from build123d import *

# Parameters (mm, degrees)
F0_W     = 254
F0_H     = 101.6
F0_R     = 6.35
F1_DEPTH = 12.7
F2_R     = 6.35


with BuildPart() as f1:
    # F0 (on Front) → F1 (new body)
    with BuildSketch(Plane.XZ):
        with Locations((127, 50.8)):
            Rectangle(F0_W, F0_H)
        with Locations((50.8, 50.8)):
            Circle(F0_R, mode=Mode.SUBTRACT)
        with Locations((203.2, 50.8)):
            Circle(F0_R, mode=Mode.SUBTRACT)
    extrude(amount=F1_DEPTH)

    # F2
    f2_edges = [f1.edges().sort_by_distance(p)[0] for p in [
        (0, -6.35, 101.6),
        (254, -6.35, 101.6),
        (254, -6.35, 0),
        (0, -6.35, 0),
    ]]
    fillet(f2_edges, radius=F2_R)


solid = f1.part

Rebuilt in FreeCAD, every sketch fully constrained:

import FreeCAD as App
import Part
import Sketcher
from FreeCAD import Vector
Q = App.Units.Quantity


def edges_at(feature, points):
    """Names of the edges that pass closest to the given points."""
    edges = feature.Shape.Edges
    near = lambda p: min(range(len(edges)), key=lambda i: edges[i].distToShape(Part.Vertex(*p))[0])
    return sorted({f"Edge{near(p) + 1}" for p in points})

doc = App.newDocument("Part")
body = doc.addObject("PartDesign::Body", "Body")

# Sketch on XZ plane
sketch1 = body.newObject("Sketcher::SketchObject", "Sketch")
sketch1.AttachmentSupport = (doc.getObject("XZ_Plane"), [""])
sketch1.MapMode = "FlatFace"
sketch1.addGeometry([
    Part.LineSegment(Vector(0, 102, 0), Vector(0, 0, 0)),  # 0
    Part.LineSegment(Vector(0, 0, 0), Vector(254, 0, 0)),  # 1
    Part.LineSegment(Vector(254, 0, 0), Vector(254, 102, 0)),  # 2
    Part.LineSegment(Vector(254, 102, 0), Vector(0, 102, 0)),  # 3
    Part.Circle(Vector(51, 51, 0), Vector(0, 0, 1), 6),  # 4
    Part.Circle(Vector(203, 51, 0), Vector(0, 0, 1), 6),  # 5
], False)
sketch1.addConstraint([
    Sketcher.Constraint("Coincident", 0, 2, 1, 1),
    Sketcher.Constraint("Coincident", 1, 2, 2, 1),
    Sketcher.Constraint("Coincident", 2, 2, 3, 1),
    Sketcher.Constraint("Coincident", 3, 2, 0, 1),
    Sketcher.Constraint("Vertical", 0),
    Sketcher.Constraint("Horizontal", 1),
    Sketcher.Constraint("Vertical", 2),
    Sketcher.Constraint("Horizontal", 3),
    Sketcher.Constraint("Coincident", 0, 2, -1, 1),
    Sketcher.Constraint("Equal", 4, 5),
    Sketcher.Constraint("Horizontal", 4, 3, 5, 3),
    Sketcher.Constraint("Diameter", 4, Q("0.5 in")),
    Sketcher.Constraint("DistanceX", 1, 1, 1, 2, Q("10 in")),
    Sketcher.Constraint("DistanceY", 0, 2, 0, 1, Q("4 in")),
    Sketcher.Constraint("DistanceX", -1, 1, 4, 3, Q("2 in")),
    Sketcher.Constraint("DistanceY", -1, 1, 4, 3, Q("2 in")),
    Sketcher.Constraint("DistanceX", -1, 1, 5, 3, Q("8 in")),
])
pad1 = body.newObject("PartDesign::Pad", "Pad")
pad1.Profile = sketch1
pad1.Length = Q("0.5 in")
doc.recompute()

fillet = body.newObject("PartDesign::Fillet", "Fillet")
fillet.Base = (pad1, edges_at(pad1, [
    (0, -6.35, 101.6),
    (254, -6.35, 101.6),
    (254, -6.35, 0),
    (0, -6.35, 0),
]))
fillet.Radius = Q("0.25 in")

doc.recompute()
